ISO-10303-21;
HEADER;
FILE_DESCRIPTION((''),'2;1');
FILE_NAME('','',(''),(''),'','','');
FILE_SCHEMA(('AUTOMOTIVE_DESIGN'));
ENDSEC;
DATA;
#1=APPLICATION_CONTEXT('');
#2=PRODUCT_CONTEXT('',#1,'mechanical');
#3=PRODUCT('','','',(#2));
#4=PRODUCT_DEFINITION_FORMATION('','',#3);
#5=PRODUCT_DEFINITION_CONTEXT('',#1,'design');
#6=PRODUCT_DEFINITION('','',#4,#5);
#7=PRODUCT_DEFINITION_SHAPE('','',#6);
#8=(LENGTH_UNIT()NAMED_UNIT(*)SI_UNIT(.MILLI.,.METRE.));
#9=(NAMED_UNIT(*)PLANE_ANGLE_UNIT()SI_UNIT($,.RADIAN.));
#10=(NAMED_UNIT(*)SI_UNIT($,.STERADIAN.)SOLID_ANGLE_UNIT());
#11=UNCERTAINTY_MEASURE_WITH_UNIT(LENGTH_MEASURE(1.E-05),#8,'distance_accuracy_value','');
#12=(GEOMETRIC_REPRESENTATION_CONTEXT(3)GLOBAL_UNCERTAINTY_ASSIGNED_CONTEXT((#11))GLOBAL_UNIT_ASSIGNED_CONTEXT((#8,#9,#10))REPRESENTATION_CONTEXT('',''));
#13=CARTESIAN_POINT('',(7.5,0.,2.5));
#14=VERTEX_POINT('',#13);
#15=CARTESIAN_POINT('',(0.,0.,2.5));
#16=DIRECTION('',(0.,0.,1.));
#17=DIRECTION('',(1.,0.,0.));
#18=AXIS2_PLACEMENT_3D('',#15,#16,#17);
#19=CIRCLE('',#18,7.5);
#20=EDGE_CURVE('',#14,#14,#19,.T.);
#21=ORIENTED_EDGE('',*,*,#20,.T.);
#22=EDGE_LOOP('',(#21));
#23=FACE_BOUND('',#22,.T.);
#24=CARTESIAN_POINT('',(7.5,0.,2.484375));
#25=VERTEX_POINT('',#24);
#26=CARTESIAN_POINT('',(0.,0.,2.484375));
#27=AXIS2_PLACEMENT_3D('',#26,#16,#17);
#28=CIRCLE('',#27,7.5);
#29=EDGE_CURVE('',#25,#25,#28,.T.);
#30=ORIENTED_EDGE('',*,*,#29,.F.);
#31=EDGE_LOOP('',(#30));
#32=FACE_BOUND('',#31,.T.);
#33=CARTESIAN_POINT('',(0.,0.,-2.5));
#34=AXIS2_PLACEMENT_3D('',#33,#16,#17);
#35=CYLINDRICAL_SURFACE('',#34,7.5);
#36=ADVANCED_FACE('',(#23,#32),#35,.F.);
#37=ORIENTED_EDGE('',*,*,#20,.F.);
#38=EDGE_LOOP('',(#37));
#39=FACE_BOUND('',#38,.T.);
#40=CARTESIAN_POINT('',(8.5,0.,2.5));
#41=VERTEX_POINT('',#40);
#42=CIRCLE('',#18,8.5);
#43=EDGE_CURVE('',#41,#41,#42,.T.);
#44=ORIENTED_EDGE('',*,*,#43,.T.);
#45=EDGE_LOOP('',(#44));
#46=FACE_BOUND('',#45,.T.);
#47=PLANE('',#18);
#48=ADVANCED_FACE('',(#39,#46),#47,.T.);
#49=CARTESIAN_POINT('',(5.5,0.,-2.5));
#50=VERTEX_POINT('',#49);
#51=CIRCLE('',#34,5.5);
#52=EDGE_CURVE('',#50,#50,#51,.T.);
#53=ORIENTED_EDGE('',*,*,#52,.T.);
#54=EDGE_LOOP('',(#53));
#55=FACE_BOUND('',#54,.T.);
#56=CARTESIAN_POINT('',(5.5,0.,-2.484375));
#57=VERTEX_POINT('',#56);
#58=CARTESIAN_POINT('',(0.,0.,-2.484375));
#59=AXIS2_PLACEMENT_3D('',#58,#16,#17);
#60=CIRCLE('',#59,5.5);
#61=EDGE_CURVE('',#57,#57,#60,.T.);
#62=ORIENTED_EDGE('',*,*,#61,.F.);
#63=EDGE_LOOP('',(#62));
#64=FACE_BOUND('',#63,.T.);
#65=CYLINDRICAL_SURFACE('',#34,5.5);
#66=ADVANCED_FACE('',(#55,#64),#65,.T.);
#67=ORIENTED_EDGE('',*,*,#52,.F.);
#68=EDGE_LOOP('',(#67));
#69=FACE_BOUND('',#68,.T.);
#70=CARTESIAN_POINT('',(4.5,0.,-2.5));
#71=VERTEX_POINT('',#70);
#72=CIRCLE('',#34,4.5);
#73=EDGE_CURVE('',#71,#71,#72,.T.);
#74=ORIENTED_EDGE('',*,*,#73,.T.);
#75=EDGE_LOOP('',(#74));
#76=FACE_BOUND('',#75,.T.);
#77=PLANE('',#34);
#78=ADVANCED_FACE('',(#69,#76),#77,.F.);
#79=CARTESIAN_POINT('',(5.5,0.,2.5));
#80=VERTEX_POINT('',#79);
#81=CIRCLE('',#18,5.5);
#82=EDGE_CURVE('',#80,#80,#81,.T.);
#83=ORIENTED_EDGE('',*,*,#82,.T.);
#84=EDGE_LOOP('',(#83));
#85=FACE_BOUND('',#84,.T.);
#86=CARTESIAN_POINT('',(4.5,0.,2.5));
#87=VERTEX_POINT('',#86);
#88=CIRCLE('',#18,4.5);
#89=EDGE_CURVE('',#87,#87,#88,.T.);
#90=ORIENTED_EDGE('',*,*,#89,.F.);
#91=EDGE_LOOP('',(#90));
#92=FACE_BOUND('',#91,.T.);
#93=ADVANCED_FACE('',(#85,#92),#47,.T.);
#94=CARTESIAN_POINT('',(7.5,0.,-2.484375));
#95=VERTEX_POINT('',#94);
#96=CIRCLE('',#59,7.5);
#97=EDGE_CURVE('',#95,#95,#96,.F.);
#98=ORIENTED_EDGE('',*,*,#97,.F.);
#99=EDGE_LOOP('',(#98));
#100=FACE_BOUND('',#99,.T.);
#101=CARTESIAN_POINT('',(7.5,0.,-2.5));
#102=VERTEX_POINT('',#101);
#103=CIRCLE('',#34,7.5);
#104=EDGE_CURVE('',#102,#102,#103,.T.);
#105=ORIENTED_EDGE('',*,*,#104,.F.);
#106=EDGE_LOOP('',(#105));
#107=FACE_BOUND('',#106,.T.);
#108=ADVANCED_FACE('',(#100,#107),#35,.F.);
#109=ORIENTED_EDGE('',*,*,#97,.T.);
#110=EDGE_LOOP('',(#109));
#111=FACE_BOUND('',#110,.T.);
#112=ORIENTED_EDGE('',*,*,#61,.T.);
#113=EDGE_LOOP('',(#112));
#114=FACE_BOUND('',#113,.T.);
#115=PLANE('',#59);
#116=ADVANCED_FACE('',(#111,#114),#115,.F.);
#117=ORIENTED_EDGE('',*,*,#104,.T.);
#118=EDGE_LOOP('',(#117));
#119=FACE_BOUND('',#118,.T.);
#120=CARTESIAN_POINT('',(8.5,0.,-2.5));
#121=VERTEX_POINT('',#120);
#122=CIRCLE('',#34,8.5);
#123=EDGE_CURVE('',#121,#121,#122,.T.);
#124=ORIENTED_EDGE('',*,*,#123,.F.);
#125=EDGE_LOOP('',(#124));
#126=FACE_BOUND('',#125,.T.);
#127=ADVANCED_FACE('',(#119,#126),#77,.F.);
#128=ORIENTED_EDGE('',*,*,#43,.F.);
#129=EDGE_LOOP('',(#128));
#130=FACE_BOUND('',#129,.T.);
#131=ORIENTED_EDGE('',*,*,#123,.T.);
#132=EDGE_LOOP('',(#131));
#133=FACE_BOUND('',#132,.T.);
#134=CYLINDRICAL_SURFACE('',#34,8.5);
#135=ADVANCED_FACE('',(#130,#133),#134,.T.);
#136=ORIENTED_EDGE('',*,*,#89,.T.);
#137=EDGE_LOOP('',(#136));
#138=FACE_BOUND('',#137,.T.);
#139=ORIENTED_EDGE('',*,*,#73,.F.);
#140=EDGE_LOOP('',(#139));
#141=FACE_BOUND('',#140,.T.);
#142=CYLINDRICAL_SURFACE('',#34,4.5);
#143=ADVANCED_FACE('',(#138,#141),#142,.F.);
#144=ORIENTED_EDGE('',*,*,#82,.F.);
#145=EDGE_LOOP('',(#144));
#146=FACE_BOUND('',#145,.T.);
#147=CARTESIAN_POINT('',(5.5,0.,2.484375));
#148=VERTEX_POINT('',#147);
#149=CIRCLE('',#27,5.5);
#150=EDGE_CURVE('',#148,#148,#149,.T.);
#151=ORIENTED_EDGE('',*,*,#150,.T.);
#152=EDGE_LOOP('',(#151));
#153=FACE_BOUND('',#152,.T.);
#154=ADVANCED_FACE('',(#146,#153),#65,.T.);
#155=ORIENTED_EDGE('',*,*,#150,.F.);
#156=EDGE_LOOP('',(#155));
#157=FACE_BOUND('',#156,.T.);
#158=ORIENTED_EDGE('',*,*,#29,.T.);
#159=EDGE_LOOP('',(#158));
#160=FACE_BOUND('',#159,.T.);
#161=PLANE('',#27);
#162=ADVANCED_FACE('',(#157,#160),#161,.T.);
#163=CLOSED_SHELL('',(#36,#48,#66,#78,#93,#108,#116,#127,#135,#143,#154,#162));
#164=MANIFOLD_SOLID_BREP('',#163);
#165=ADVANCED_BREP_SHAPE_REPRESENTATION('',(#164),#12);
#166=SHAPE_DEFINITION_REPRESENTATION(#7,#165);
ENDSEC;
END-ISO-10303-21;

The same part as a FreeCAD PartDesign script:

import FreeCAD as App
import Part
import Sketcher

V = App.Vector

doc = App.newDocument("Part")
body = doc.addObject("PartDesign::Body", "Body")

sketch1 = doc.addObject("Sketcher::SketchObject", "Sketch")
body.addObject(sketch1)
sketch1.AttachmentSupport = (doc.XY_Plane, [""])
sketch1.MapMode = "FlatFace"
sketch1.addGeometry([
    Part.Circle(V(0, 0, 0), V(0, 0, 1), 8.5),
    Part.Circle(V(0, 0, 0), V(0, 0, 1), 7.5),
], False)
sketch1.addConstraint([
    Sketcher.Constraint("Coincident", 0, 3, -1, 1),
    Sketcher.Constraint("Coincident", 1, 3, -1, 1),
    Sketcher.Constraint("Diameter", 0, 17.0),
    Sketcher.Constraint("Diameter", 1, 15.0),
])
pad1 = doc.addObject("PartDesign::Pad", "Pad")
body.addObject(pad1)
pad1.Profile = sketch1
pad1.Type = "TwoLengths"
pad1.Length = 2.5
pad1.Length2 = 2.5
body2 = doc.addObject("PartDesign::Body", "Body001")

sketch2 = doc.addObject("Sketcher::SketchObject", "Sketch001")
body2.addObject(sketch2)
sketch2.AttachmentSupport = (doc.getObject("XY_Plane001"), [""])
sketch2.MapMode = "FlatFace"
sketch2.addGeometry([
    Part.Circle(V(0, 0, 0), V(0, 0, 1), 5.5),
    Part.Circle(V(0, 0, 0), V(0, 0, 1), 4.5),
], False)
sketch2.addConstraint([
    Sketcher.Constraint("Coincident", 0, 3, -1, 1),
    Sketcher.Constraint("Coincident", 1, 3, -1, 1),
    Sketcher.Constraint("Diameter", 0, 11.0),
    Sketcher.Constraint("Diameter", 1, 9.0),
])
pad2 = doc.addObject("PartDesign::Pad", "Pad001")
body2.addObject(pad2)
pad2.Profile = sketch2
pad2.Type = "TwoLengths"
pad2.Length = 2.5
pad2.Length2 = 2.5
body.AllowCompound = True
doc.recompute()

boolean = doc.addObject("PartDesign::Boolean", "Boolean")
body.addObject(boolean)
boolean.Type = "Fuse"
boolean.addObjects([body2])

sketch3 = doc.addObject("Sketcher::SketchObject", "Sketch002")
body.addObject(sketch3)
sketch3.AttachmentSupport = (doc.XY_Plane, [""])
sketch3.MapMode = "FlatFace"
sketch3.addGeometry([
    Part.Circle(V(0, 0, 0), V(0, 0, 1), 7.5),
    Part.Circle(V(0, 0, 0), V(0, 0, 1), 5.5),
], False)
sketch3.addConstraint([
    Sketcher.Constraint("Coincident", 0, 3, -1, 1),
    Sketcher.Constraint("Coincident", 1, 3, -1, 1),
    Sketcher.Constraint("Diameter", 0, 15.0),
    Sketcher.Constraint("Diameter", 1, 11.0),
])
pad3 = doc.addObject("PartDesign::Pad", "Pad002")
body.addObject(pad3)
pad3.Profile = sketch3
pad3.Type = "TwoLengths"
pad3.Length = 2.484375
pad3.Length2 = 2.484375

doc.recompute()
